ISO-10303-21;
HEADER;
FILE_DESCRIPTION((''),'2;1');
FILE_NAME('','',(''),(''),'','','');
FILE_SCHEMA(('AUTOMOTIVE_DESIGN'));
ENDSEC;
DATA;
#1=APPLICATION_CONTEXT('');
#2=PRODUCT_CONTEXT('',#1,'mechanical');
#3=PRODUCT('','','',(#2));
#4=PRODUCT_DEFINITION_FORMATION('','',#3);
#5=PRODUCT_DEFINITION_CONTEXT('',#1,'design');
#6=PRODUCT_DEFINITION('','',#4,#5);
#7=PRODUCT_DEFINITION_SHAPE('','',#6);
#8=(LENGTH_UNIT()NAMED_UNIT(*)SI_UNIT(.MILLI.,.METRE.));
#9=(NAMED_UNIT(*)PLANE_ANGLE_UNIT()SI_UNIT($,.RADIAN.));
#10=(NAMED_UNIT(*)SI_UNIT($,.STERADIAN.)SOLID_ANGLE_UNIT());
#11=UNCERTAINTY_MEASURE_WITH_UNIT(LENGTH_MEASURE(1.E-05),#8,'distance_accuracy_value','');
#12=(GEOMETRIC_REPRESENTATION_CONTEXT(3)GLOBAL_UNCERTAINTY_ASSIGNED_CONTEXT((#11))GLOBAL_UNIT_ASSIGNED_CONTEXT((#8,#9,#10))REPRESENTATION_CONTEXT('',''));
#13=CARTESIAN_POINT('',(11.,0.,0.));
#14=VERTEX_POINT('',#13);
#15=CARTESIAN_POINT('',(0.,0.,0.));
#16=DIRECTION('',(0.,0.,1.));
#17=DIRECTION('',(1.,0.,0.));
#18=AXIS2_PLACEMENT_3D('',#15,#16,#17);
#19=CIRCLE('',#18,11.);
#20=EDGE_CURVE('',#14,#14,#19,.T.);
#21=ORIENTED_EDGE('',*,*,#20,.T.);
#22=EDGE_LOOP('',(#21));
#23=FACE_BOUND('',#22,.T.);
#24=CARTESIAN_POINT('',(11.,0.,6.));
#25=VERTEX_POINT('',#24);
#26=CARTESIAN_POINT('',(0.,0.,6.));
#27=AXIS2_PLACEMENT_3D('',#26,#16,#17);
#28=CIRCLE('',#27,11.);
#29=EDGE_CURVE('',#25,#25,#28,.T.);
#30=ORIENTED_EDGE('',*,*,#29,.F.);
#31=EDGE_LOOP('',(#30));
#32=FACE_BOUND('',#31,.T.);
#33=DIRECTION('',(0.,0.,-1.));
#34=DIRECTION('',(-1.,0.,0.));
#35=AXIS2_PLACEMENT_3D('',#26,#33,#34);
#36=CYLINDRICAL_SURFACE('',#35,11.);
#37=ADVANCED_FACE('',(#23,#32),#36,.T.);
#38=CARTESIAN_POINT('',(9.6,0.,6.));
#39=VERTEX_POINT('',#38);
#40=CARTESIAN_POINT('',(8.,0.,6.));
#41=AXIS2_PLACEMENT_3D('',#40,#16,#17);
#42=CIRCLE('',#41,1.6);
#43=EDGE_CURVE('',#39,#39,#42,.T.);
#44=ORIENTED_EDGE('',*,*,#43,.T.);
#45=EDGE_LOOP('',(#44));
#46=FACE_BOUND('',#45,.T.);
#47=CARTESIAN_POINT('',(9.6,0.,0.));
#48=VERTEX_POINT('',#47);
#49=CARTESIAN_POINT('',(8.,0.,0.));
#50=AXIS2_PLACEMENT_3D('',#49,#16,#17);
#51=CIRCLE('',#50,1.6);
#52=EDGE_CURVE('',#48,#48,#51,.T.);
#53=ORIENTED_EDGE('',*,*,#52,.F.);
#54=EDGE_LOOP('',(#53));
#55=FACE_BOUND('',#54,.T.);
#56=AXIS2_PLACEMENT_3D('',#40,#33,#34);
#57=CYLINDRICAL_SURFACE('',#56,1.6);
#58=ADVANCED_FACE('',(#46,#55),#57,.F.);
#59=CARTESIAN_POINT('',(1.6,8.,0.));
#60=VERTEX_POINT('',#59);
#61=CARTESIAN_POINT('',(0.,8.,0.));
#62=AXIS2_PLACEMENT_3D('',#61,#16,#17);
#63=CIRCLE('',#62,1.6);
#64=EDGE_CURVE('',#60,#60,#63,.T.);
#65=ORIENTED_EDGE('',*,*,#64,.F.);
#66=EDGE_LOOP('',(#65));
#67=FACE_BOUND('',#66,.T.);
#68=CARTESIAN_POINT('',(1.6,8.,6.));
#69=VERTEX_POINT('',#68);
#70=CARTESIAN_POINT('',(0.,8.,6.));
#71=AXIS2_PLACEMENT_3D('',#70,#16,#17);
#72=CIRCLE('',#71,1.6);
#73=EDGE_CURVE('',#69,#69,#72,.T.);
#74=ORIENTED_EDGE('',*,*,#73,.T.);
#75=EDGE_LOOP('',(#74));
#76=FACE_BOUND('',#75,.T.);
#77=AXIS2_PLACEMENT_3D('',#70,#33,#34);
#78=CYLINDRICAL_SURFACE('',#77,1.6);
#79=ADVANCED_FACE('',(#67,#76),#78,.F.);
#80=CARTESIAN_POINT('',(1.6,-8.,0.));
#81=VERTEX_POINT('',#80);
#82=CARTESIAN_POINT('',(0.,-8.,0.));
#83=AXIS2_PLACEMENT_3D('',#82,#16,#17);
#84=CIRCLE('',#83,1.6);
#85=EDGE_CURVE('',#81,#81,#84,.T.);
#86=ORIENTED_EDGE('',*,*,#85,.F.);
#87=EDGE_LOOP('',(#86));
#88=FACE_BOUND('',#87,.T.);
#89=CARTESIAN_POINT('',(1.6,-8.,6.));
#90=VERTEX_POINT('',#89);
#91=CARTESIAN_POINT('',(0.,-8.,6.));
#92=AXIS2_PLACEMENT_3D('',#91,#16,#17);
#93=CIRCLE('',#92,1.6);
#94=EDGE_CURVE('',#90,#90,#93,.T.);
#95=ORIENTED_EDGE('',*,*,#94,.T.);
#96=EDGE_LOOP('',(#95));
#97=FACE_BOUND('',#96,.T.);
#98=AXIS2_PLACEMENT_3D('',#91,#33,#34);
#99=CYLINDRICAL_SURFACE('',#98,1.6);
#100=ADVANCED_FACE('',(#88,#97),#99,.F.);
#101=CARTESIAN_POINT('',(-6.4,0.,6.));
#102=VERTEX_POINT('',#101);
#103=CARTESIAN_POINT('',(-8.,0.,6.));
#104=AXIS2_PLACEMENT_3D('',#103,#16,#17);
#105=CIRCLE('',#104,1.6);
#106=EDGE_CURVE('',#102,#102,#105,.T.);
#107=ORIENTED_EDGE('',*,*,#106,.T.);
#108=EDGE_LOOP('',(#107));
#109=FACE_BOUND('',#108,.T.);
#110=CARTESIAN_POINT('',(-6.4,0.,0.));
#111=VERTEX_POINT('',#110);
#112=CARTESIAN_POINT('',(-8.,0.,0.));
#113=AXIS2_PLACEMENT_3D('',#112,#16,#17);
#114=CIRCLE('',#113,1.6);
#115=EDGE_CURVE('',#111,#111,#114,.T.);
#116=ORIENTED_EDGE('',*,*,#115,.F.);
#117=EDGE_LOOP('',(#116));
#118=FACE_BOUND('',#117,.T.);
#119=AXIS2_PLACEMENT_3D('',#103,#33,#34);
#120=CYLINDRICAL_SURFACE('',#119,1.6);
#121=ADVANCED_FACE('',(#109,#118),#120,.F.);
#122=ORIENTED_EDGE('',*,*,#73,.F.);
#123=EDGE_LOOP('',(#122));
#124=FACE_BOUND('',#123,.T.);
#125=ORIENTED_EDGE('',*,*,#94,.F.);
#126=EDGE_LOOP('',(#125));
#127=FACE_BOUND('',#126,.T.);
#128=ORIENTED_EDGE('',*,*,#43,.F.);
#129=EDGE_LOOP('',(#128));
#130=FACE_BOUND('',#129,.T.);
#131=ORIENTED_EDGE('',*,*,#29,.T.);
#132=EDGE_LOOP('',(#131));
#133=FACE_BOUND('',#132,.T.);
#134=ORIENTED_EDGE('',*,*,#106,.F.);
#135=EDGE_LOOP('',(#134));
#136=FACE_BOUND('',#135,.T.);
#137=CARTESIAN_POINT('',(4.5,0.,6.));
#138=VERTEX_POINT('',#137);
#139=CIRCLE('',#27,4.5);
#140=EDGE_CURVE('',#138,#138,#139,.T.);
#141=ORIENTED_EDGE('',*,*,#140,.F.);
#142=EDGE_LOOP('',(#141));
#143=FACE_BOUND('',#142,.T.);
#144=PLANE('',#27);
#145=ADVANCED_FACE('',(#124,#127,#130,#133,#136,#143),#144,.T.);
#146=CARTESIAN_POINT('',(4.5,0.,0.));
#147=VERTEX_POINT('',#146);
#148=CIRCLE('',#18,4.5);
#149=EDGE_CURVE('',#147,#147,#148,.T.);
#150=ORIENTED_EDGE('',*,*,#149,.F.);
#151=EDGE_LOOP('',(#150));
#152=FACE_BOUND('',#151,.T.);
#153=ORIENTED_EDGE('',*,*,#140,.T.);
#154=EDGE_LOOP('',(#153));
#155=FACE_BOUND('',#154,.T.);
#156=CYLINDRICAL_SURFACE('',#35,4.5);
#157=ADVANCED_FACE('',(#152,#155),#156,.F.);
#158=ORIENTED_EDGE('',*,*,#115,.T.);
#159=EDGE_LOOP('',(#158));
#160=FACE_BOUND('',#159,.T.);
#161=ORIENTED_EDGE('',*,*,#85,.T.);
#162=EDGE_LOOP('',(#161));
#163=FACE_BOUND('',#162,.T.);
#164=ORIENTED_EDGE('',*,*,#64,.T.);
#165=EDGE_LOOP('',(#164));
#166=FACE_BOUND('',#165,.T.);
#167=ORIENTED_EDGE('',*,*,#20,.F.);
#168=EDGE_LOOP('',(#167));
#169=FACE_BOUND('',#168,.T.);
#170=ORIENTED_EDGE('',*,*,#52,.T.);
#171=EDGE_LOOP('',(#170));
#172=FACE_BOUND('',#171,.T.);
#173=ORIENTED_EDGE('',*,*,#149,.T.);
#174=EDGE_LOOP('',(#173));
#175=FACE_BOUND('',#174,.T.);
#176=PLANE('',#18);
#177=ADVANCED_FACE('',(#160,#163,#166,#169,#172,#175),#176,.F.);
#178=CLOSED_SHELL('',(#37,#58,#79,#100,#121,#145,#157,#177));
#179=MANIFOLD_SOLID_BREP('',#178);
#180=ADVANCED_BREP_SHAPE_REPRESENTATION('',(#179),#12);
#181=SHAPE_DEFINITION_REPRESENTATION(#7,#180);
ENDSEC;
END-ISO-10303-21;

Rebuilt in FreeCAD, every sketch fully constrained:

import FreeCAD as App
import Part
import Sketcher
from FreeCAD import Vector

doc = App.newDocument("Part")
body = doc.addObject("PartDesign::Body", "Body")

sketch1 = body.newObject("Sketcher::SketchObject", "Sketch")
sketch1.AttachmentSupport = (doc.getObject("XY_Plane"), [""])
sketch1.MapMode = "FlatFace"
sketch1.addGeometry([
    Part.Circle(Vector(0, 0, 0), Vector(0, 0, 1), 11),
    Part.Circle(Vector(0, -8, 0), Vector(0, 0, 1), 1.6),
    Part.Circle(Vector(-8, 0, 0), Vector(0, 0, 1), 1.6),
    Part.Circle(Vector(0, 0, 0), Vector(0, 0, 1), 4.5),
    Part.Circle(Vector(8, 0, 0), Vector(0, 0, 1), 1.6),
    Part.Circle(Vector(0, 8, 0), Vector(0, 0, 1), 1.6),
], False)
sketch1.addConstraint([
    Sketcher.Constraint("Coincident", 0, 3, -1, 1),
    Sketcher.Constraint("Coincident", 3, 3, -1, 1),
    Sketcher.Constraint("Equal", 1, 2),
    Sketcher.Constraint("Equal", 2, 4),
    Sketcher.Constraint("Equal", 4, 5),
    Sketcher.Constraint("Symmetric", 2, 3, 4, 3, -1, 1),
    Sketcher.Constraint("Symmetric", 1, 3, 5, 3, -1, 1),
    Sketcher.Constraint("PointOnObject", 1, 3, -2),
    Sketcher.Constraint("PointOnObject", 2, 3, -1),
    Sketcher.Constraint("Diameter", 0, 22.0),
    Sketcher.Constraint("Diameter", 3, 9.0),
    Sketcher.Constraint("Diameter", 1, 3.2),
    Sketcher.Constraint("DistanceY", 1, 3, -1, 1, 8.0),
    Sketcher.Constraint("DistanceX", 2, 3, -1, 1, 8.0),
])
pad1 = body.newObject("PartDesign::Pad", "Pad")
pad1.Profile = sketch1
pad1.Length = 6

doc.recompute()
